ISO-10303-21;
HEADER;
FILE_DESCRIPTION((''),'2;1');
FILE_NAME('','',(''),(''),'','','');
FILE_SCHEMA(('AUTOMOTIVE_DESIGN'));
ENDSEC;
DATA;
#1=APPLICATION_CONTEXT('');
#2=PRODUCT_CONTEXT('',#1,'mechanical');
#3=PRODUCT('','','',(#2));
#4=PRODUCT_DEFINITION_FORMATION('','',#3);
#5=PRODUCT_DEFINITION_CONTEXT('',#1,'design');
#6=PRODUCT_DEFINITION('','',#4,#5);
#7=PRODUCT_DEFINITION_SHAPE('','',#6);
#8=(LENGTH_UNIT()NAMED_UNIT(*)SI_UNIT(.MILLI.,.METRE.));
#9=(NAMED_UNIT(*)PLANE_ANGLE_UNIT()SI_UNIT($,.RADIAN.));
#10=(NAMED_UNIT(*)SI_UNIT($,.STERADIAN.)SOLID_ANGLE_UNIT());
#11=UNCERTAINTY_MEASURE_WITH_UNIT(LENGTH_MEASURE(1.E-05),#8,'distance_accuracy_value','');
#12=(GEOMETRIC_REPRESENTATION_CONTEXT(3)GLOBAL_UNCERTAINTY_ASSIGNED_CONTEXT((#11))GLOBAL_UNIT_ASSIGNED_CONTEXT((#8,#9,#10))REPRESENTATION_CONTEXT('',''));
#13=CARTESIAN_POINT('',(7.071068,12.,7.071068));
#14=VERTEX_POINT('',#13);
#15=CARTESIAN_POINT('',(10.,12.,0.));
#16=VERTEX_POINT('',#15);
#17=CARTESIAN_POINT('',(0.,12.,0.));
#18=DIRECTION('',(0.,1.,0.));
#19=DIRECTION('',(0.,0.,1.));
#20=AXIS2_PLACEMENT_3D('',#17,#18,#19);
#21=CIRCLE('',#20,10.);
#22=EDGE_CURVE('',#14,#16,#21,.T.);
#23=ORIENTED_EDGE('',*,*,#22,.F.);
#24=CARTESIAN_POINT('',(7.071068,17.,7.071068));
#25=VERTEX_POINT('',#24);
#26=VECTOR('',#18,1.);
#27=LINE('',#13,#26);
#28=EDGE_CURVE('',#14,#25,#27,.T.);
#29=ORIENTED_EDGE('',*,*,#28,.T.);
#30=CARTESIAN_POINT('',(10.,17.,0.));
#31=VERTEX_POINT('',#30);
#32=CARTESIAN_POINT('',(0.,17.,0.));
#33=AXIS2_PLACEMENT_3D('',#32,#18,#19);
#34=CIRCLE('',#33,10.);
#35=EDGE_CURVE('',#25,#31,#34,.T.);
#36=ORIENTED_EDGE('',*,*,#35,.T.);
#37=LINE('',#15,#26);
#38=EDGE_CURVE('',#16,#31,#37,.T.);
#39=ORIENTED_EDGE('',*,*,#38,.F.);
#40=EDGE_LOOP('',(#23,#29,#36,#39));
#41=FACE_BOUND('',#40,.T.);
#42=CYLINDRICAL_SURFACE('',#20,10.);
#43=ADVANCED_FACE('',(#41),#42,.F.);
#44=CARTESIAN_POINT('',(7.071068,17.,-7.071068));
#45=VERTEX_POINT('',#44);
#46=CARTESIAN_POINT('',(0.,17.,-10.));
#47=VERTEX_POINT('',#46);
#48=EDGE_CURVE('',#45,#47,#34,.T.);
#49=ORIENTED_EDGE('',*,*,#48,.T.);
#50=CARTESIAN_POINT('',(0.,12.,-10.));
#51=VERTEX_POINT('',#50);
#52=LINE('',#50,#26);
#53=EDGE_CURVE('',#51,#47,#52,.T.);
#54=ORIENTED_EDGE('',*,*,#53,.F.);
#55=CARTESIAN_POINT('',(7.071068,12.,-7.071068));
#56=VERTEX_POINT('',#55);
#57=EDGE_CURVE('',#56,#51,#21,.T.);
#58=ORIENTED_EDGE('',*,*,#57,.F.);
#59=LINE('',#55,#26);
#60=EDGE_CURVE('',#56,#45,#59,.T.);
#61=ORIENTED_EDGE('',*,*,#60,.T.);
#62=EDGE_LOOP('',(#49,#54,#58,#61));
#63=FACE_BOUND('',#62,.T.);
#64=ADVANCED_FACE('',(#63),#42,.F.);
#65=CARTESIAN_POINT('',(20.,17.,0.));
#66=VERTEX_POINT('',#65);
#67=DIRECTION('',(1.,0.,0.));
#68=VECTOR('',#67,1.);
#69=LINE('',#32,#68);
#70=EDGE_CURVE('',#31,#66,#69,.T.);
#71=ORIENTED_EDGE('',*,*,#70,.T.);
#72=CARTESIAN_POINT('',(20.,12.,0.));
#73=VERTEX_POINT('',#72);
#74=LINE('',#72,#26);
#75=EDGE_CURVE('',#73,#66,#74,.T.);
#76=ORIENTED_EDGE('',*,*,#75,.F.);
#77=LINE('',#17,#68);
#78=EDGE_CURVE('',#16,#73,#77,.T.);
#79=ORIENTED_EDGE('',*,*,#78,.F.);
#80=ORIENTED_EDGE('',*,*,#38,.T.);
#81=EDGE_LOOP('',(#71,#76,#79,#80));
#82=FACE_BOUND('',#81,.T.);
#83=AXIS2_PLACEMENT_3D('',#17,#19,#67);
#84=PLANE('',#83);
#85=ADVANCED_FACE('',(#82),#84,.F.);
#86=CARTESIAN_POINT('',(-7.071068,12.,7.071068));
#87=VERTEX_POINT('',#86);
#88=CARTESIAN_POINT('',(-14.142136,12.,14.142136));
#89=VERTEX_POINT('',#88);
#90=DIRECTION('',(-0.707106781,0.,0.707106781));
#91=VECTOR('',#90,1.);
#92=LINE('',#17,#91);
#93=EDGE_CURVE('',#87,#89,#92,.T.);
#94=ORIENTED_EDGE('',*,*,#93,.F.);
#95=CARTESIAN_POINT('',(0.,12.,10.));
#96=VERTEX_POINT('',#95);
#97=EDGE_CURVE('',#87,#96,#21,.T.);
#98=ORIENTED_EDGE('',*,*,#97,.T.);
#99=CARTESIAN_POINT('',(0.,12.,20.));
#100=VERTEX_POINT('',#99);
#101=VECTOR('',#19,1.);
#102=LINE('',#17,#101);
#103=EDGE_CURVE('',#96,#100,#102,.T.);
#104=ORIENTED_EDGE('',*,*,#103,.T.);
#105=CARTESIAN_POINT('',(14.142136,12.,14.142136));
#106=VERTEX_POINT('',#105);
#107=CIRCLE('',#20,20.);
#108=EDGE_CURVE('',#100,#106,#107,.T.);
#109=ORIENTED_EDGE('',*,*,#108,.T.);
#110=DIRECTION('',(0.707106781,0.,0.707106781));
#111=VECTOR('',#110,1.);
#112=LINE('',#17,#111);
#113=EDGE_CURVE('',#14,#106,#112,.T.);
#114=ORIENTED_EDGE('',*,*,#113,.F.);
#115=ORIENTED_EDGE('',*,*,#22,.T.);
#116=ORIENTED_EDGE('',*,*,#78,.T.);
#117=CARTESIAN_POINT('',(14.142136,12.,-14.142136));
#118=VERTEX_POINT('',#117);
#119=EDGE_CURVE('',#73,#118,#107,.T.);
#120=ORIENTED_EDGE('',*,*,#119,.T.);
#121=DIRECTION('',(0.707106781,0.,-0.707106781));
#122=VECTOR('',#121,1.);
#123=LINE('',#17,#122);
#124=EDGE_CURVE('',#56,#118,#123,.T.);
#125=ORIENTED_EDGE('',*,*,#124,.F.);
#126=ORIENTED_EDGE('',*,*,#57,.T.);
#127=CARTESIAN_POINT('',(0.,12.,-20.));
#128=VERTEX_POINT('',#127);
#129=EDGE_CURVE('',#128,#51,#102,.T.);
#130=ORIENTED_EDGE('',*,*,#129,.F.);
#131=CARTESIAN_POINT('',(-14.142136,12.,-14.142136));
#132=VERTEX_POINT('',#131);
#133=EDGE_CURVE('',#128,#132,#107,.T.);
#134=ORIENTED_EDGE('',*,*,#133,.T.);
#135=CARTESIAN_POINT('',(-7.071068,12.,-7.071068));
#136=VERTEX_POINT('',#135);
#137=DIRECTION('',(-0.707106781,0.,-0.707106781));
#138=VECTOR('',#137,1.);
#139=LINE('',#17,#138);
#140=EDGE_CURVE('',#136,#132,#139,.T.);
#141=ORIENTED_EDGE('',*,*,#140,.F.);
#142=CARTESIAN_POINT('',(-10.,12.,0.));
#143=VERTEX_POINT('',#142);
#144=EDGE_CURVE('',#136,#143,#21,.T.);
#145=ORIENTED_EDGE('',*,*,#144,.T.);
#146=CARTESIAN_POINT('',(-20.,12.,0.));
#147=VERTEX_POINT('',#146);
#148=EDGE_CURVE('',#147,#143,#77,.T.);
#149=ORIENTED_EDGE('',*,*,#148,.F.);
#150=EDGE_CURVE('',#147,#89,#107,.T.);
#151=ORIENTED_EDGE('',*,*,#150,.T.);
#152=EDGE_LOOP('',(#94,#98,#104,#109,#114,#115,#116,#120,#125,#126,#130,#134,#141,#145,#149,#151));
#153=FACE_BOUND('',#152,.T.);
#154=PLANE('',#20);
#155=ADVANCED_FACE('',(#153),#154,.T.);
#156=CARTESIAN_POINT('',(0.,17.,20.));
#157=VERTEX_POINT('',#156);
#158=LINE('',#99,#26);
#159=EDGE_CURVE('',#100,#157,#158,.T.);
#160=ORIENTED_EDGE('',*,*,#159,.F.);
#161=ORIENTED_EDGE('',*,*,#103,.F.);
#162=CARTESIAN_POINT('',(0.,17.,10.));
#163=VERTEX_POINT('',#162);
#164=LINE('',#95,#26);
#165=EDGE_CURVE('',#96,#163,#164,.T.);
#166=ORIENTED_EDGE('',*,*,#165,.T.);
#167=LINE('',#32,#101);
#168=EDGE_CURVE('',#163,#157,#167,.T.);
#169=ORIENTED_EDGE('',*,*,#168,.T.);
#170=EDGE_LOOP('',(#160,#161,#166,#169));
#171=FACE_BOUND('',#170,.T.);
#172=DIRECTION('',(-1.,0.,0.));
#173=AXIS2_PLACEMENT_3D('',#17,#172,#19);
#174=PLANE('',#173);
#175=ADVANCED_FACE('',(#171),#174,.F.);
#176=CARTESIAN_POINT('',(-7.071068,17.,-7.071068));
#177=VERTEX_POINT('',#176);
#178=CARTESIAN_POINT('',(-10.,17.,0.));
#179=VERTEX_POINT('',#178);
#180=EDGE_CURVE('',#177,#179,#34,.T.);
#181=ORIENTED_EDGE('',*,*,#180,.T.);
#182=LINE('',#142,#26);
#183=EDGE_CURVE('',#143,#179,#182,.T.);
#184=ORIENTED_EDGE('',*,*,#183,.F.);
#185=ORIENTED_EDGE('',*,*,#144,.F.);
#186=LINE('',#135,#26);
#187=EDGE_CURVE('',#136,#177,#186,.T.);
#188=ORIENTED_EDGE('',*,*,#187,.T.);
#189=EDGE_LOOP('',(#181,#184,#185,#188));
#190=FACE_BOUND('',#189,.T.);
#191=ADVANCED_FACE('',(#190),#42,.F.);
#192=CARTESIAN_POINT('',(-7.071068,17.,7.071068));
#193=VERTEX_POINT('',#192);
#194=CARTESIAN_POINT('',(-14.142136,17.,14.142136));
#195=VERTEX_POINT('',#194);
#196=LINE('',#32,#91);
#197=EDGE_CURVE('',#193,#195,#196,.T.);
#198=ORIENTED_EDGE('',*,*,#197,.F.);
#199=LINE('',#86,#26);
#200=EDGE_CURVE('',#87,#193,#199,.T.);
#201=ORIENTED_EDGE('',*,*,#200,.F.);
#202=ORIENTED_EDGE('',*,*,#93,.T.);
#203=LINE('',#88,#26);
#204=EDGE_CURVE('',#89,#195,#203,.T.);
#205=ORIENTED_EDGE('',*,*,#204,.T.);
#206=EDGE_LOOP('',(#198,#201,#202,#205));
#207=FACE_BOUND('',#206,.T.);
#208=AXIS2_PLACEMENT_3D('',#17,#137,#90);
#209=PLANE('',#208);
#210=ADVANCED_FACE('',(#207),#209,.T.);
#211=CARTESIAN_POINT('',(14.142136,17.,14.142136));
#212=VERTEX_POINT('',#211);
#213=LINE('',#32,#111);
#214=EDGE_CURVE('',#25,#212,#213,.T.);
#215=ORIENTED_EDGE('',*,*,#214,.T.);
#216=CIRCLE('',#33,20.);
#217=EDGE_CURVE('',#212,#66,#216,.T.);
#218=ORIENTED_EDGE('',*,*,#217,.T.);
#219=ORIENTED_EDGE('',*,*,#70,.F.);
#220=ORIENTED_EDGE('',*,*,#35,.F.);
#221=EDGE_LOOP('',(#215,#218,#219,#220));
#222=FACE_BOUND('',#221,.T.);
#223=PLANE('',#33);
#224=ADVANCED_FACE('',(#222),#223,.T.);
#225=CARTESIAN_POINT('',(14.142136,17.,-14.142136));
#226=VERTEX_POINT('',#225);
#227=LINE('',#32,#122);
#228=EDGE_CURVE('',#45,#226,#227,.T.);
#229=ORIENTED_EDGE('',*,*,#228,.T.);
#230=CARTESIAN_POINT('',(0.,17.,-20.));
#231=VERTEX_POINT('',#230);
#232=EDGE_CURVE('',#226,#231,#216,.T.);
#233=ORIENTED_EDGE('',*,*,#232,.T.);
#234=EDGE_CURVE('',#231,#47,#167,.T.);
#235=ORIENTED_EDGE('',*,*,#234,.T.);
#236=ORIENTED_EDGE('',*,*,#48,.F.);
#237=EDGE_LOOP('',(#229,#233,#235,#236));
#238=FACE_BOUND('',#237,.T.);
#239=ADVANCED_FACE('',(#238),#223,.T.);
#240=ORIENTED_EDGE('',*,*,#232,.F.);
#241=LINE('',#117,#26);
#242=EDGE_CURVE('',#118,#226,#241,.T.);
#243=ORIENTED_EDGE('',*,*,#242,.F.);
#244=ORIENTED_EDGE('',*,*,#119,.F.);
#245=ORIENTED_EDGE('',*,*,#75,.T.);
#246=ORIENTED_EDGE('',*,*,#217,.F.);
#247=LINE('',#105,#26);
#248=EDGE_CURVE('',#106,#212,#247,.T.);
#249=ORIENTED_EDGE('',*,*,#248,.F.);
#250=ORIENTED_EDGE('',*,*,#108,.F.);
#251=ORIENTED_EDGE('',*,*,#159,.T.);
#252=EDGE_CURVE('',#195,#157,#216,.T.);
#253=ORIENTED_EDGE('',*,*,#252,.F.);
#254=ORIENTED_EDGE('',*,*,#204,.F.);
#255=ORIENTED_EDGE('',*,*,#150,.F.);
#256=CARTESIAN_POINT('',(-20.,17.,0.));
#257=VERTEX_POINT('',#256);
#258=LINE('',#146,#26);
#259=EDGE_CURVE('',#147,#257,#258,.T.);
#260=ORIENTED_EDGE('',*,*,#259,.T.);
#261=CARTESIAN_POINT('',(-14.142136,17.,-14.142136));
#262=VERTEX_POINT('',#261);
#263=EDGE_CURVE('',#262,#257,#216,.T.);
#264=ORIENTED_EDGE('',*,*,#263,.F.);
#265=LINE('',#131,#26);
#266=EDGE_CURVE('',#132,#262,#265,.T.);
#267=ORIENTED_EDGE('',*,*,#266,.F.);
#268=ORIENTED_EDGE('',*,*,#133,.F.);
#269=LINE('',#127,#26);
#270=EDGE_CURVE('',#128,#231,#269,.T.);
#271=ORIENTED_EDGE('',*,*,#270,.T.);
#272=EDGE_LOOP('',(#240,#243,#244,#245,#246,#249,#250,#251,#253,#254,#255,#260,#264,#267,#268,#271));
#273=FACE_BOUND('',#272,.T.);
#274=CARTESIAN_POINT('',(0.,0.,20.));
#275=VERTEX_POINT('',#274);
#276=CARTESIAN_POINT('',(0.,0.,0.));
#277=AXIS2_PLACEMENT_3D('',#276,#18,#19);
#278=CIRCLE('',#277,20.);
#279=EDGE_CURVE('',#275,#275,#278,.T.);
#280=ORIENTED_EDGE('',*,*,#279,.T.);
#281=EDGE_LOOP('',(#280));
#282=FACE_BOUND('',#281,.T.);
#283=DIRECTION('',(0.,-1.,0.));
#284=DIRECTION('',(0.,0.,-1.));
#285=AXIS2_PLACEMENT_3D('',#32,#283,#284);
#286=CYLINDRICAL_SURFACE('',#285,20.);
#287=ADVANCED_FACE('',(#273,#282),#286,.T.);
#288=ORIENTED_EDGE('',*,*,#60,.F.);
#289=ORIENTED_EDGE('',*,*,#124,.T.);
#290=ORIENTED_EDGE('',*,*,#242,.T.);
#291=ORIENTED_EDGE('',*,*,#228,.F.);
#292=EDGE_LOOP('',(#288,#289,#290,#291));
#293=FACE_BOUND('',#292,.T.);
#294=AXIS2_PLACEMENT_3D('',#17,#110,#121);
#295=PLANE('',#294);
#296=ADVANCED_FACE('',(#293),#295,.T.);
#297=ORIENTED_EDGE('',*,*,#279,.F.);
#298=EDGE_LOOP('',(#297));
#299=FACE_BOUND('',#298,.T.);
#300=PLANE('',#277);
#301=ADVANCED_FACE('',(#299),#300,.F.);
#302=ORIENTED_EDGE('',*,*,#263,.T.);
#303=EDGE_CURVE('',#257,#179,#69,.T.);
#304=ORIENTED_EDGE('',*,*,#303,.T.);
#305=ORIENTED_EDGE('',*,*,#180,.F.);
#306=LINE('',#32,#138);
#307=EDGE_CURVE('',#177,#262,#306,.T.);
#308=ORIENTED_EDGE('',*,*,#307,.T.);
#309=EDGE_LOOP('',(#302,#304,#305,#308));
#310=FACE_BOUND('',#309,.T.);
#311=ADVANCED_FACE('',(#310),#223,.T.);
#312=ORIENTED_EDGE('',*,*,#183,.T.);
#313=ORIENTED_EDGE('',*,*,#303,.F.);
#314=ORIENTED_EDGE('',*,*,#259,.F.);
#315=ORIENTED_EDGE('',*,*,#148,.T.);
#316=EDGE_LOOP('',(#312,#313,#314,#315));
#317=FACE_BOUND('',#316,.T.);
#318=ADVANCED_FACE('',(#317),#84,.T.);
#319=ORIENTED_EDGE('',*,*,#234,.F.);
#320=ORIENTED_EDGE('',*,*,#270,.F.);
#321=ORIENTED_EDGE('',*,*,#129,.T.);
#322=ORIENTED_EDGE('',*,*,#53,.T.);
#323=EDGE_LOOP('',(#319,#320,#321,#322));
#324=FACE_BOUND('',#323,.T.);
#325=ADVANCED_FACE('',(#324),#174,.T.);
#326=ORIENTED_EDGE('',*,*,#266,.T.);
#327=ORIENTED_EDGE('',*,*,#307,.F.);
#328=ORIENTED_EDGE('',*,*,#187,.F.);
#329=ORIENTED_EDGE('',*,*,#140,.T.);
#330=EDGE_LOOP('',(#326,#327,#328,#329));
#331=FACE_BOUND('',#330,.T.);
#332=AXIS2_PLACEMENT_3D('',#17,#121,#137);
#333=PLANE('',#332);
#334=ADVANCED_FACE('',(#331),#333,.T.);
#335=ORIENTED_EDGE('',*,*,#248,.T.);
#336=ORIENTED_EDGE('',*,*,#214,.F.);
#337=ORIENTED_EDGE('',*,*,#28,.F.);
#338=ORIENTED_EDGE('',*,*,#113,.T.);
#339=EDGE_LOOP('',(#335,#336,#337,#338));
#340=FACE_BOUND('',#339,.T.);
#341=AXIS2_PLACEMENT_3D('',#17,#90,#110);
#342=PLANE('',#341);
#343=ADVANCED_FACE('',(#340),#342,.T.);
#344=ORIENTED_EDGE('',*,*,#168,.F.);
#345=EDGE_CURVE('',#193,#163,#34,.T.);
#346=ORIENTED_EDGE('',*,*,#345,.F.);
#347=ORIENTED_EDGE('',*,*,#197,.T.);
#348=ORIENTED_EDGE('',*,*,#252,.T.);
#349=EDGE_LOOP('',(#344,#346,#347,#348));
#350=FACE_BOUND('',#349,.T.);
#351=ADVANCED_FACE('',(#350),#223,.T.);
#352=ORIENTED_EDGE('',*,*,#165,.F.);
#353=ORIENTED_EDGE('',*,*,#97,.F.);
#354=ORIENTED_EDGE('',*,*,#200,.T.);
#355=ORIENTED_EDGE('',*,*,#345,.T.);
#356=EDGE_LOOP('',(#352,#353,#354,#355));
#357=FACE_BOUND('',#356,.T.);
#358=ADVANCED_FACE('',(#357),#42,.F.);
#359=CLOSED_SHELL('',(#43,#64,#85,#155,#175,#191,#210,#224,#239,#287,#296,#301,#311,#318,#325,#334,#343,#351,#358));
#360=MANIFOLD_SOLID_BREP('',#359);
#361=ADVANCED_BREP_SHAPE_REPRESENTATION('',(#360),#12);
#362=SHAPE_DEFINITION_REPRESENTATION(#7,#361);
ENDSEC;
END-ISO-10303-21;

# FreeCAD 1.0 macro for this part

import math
import FreeCAD as App
import Part
import Sketcher
Q = App.Units.Quantity

doc = App.newDocument("Part")
params = doc.addObject("Spreadsheet::Sheet", "Params")
for row, (alias, value) in enumerate([
    ("sketch1_diameter", "40 mm"),
    ("pad1_length", "17 mm"),
    ("sketch2_radius", "20 mm"),
    ("sketch2_radius2", "10 mm"),
    ("pocket1_length", "5 mm"),
], start=1):
    params.set(f"A{row}", alias)
    params.set(f"B{row}", "=" + value)
    params.setAlias(f"B{row}", alias)

body = doc.addObject("PartDesign::Body", "Body")

sketch1 = body.newObject("Sketcher::SketchObject", "Sketch")
sketch1.AttachmentSupport = (doc.getObject("XZ_Plane"), [""])
sketch1.MapMode = "FlatFace"
sketch1.addGeometry(Part.Circle(App.Vector(0, 0, 0), App.Vector(0, 0, 1), 20), False)
sketch1.addConstraint([
    Sketcher.Constraint("Coincident", 0, 3, -1, 1),
    Sketcher.Constraint("Diameter", 0, Q("40 mm")),
])
sketch1.setExpression("Constraints[1]", "Params.sketch1_diameter")
pad1 = body.newObject("PartDesign::Pad", "Pad")
pad1.Profile = sketch1
pad1.setExpression("Length", "Params.pad1_length")
pad1.Reversed = True

sketch2 = body.newObject("Sketcher::SketchObject", "Sketch001")
sketch2.AttachmentSupport = (doc.getObject("XZ_Plane"), [""])
sketch2.MapMode = "FlatFace"
sketch2.AttachmentOffset = App.Placement(App.Vector(0, 0, -12), App.Rotation())
sketch2.addGeometry([
    Part.ArcOfCircle(Part.Circle(App.Vector(0, 0, 0), App.Vector(0, 0, 1), 20), math.radians(-135), math.radians(-90)),
    Part.LineSegment(App.Vector(-14, -14, 0), App.Vector(-7, -7, 0)),
    Part.ArcOfCircle(Part.Circle(App.Vector(0, 0, 0), App.Vector(0, 0, 1), 10), math.radians(180), math.radians(225)),
    Part.LineSegment(App.Vector(-10, 0, 0), App.Vector(-20, 0, 0)),
    Part.ArcOfCircle(Part.Circle(App.Vector(0, 0, 0), App.Vector(0, 0, 1), 20), math.radians(135), math.radians(180)),
    Part.LineSegment(App.Vector(-14, 14, 0), App.Vector(-7, 7, 0)),
    Part.ArcOfCircle(Part.Circle(App.Vector(0, 0, 0), App.Vector(0, 0, 1), 10), math.radians(90), math.radians(135)),
    Part.LineSegment(App.Vector(0, 10, 0), App.Vector(0, 20, 0)),
    Part.ArcOfCircle(Part.Circle(App.Vector(0, 0, 0), App.Vector(0, 0, 1), 20), math.radians(45), math.radians(90)),
    Part.LineSegment(App.Vector(14, 14, 0), App.Vector(7, 7, 0)),
    Part.ArcOfCircle(Part.Circle(App.Vector(0, 0, 0), App.Vector(0, 0, 1), 10), math.radians(0), math.radians(45)),
    Part.LineSegment(App.Vector(10, 0, 0), App.Vector(20, 0, 0)),
    Part.ArcOfCircle(Part.Circle(App.Vector(0, 0, 0), App.Vector(0, 0, 1), 20), math.radians(-45), math.radians(0)),
    Part.LineSegment(App.Vector(14, -14, 0), App.Vector(7, -7, 0)),
    Part.ArcOfCircle(Part.Circle(App.Vector(0, 0, 0), App.Vector(0, 0, 1), 10), math.radians(-90), math.radians(-45)),
    Part.LineSegment(App.Vector(0, -10, 0), App.Vector(0, -20, 0)),
], False)
sketch2.addConstraint([
    Sketcher.Constraint("Coincident", 0, 1, 1, 1),
    Sketcher.Constraint("Coincident", 1, 2, 2, 2),
    Sketcher.Constraint("Coincident", 2, 1, 3, 1),
    Sketcher.Constraint("Coincident", 3, 2, 4, 2),
    Sketcher.Constraint("Coincident", 4, 1, 5, 1),
    Sketcher.Constraint("Coincident", 5, 2, 6, 2),
    Sketcher.Constraint("Coincident", 6, 1, 7, 1),
    Sketcher.Constraint("Coincident", 7, 2, 8, 2),
    Sketcher.Constraint("Coincident", 8, 1, 9, 1),
    Sketcher.Constraint("Coincident", 9, 2, 10, 2),
    Sketcher.Constraint("Coincident", 10, 1, 11, 1),
    Sketcher.Constraint("Coincident", 11, 2, 12, 2),
    Sketcher.Constraint("Coincident", 12, 1, 13, 1),
    Sketcher.Constraint("Coincident", 13, 2, 14, 2),
    Sketcher.Constraint("Coincident", 14, 1, 15, 1),
    Sketcher.Constraint("Coincident", 15, 2, 0, 2),
    Sketcher.Constraint("Horizontal", 3),
    Sketcher.Constraint("Vertical", 7),
    Sketcher.Constraint("Horizontal", 11),
    Sketcher.Constraint("Vertical", 15),
    Sketcher.Constraint("Coincident", 0, 3, -1, 1),
    Sketcher.Constraint("Coincident", 2, 3, -1, 1),
    Sketcher.Constraint("Coincident", 4, 3, -1, 1),
    Sketcher.Constraint("Coincident", 6, 3, -1, 1),
    Sketcher.Constraint("Coincident", 8, 3, -1, 1),
    Sketcher.Constraint("Coincident", 10, 3, -1, 1),
    Sketcher.Constraint("Coincident", 12, 3, -1, 1),
    Sketcher.Constraint("Coincident", 14, 3, -1, 1),
    Sketcher.Constraint("Equal", 0, 4),
    Sketcher.Constraint("Equal", 2, 6),
    Sketcher.Constraint("Equal", 4, 8),
    Sketcher.Constraint("Equal", 6, 10),
    Sketcher.Constraint("Equal", 8, 12),
    Sketcher.Constraint("Equal", 10, 14),
    Sketcher.Constraint("PointOnObject", 2, 1, -1),
    Sketcher.Constraint("PointOnObject", 6, 1, -2),
    Sketcher.Constraint("PointOnObject", 10, 1, -1),
    Sketcher.Constraint("PointOnObject", 14, 1, -2),
    Sketcher.Constraint("Perpendicular", 1, 5),
    Sketcher.Constraint("Perpendicular", 5, 9),
    Sketcher.Constraint("Perpendicular", 9, 13),
    Sketcher.Constraint("Horizontal", 4, 1, 8, 1),
    Sketcher.Constraint("Horizontal", 5, 2, 9, 2),
    Sketcher.Constraint("Horizontal", 0, 1, 12, 1),
    Sketcher.Constraint("Vertical", 0, 1, 4, 1),
    Sketcher.Constraint("Radius", 0, Q("20 mm")),
    Sketcher.Constraint("Radius", 2, Q("10 mm")),
    Sketcher.Constraint("DistanceX", 0, 1, -1, 1, Q("14.142136 mm")),
])
sketch2.setExpression("Constraints[45]", "Params.sketch2_radius")
sketch2.setExpression("Constraints[46]", "Params.sketch2_radius2")
pocket1 = body.newObject("PartDesign::Pocket", "Pocket")
pocket1.Profile = sketch2
pocket1.setExpression("Length", "Params.pocket1_length")

doc.recompute()
